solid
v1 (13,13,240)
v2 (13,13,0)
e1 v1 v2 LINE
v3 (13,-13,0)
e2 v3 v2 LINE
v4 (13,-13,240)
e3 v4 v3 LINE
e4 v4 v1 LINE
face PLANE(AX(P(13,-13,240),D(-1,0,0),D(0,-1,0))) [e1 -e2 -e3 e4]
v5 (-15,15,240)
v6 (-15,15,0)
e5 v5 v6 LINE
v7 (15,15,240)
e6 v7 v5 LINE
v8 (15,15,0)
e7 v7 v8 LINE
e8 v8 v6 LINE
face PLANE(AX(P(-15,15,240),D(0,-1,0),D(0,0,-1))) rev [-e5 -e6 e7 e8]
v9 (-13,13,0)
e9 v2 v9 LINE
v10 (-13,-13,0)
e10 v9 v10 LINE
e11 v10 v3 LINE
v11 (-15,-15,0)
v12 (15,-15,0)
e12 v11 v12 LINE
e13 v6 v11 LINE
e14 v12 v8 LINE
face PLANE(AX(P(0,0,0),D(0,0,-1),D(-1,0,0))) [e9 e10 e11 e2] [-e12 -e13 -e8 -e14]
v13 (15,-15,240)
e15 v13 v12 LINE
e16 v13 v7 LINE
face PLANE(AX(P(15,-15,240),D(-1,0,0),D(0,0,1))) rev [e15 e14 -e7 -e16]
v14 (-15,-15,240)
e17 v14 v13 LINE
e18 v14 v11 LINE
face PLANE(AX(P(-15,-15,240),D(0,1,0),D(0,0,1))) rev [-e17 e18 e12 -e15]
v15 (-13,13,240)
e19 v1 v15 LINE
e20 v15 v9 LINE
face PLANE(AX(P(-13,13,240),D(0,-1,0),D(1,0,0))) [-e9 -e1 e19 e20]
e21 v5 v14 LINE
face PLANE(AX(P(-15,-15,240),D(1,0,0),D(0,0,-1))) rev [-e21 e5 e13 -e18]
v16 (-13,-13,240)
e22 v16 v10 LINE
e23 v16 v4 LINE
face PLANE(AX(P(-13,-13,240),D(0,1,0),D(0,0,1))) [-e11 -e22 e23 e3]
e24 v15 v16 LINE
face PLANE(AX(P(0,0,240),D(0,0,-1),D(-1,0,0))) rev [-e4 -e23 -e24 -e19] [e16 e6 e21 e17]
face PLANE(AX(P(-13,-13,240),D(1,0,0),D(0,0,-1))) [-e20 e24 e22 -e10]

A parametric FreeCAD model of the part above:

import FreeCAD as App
import Part
import Sketcher
from FreeCAD import Vector
Q = App.Units.Quantity


def add_polygon(sketch, points):
    """Adds a closed chain of lines whose ends are joined by coincident constraints."""
    first, n = sketch.GeometryCount, len(points)
    for a, b in zip(points, points[1:] + points[:1]):
        sketch.addGeometry(Part.LineSegment(App.Vector(*a, 0), App.Vector(*b, 0)), False)
    for i in range(n):
        sketch.addConstraint(Sketcher.Constraint("Coincident", first + i, 2, first + (i + 1) % n, 1))

doc = App.newDocument("Part")
body = doc.addObject("PartDesign::Body", "Body")

# Sketch on XY plane
sketch1 = body.newObject("Sketcher::SketchObject", "Sketch")
sketch1.AttachmentSupport = (doc.getObject("XY_Plane"), [""])
sketch1.MapMode = "FlatFace"
add_polygon(sketch1, [(-15, 15), (-15, -15), (15, -15), (15, 15)])  # lines 0-3
add_polygon(sketch1, [(13, -13), (-13, -13), (-13, 13), (13, 13)])  # lines 4-7
sketch1.addConstraint([
    Sketcher.Constraint("Vertical", 0),
    Sketcher.Constraint("Horizontal", 1),
    Sketcher.Constraint("Vertical", 2),
    Sketcher.Constraint("Horizontal", 3),
    Sketcher.Constraint("Horizontal", 4),
    Sketcher.Constraint("Vertical", 5),
    Sketcher.Constraint("Horizontal", 6),
    Sketcher.Constraint("Vertical", 7),
    Sketcher.Constraint("Symmetric", 0, 2, 2, 2, -1, 1),
    Sketcher.Constraint("Symmetric", 4, 2, 6, 2, -1, 1),
    Sketcher.Constraint("Equal", 3, 0),
    Sketcher.Constraint("Equal", 6, 5),
    Sketcher.Constraint("DistanceX", 1, 1, 1, 2, Q("30 mm")),
    Sketcher.Constraint("DistanceX", 4, 2, 4, 1, Q("26 mm")),
])
pad1 = body.newObject("PartDesign::Pad", "Pad")
pad1.Profile = sketch1
pad1.Length = 240

doc.recompute()
